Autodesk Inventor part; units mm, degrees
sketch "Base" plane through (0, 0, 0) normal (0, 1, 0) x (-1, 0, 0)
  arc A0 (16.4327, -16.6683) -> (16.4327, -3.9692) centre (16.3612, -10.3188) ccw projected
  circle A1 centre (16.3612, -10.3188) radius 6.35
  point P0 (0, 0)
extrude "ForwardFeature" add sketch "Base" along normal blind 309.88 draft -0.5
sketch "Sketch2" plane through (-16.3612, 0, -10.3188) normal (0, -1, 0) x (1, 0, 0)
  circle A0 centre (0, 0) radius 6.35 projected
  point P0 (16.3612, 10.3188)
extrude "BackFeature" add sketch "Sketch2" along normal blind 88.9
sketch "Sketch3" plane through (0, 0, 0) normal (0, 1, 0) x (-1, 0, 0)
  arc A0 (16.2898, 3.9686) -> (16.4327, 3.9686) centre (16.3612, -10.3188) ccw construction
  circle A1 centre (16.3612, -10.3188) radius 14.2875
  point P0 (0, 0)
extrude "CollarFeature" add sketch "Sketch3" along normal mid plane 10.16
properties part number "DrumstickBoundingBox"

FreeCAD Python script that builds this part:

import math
import FreeCAD as App
import Part
import Sketcher
from FreeCAD import Vector
Q = App.Units.Quantity

doc = App.newDocument("Part")
params = doc.addObject("Spreadsheet::Sheet", "Params")
for row, (alias, value) in enumerate([
    ("sketch1_radius", "0.25 in"),
    ("pad1_length", "12.2 in"),
    ("pad1_taper", "-0.5 deg"),
    ("sketch2_diameter", "0.5 in"),
    ("pad2_length", "3.5 in"),
    ("sketch3_diameter", "1.125 in"),
    ("pad3_length", "0.4 in"),
], start=1):
    params.set(f"A{row}", alias)
    params.set(f"B{row}", "=" + value)
    params.setAlias(f"B{row}", alias)

body = doc.addObject("PartDesign::Body", "Body")

# Sketch on XZ plane
sketch1 = body.newObject("Sketcher::SketchObject", "Sketch")
sketch1.AttachmentSupport = (doc.getObject("XZ_Plane"), [""])
sketch1.MapMode = "FlatFace"
sketch1.addGeometry([
    Part.ArcOfCircle(Part.Circle(Vector(-16.3612, -10.3188, 0), Vector(0, 0, 1), 6.35), math.radians(-90.645165), math.radians(90.645155)),
    Part.ArcOfCircle(Part.Circle(Vector(-16.3612, -10.3188, 0), Vector(0, 0, 1), 6.35), math.radians(90.645155), math.radians(269.354835)),
], False)
sketch1.addConstraint([
    Sketcher.Constraint("Tangent", 0, 1, 1, 2),
    Sketcher.Constraint("Coincident", 1, 1, 0, 2),
    Sketcher.Constraint("Vertical", 0, 1, 1, 1),
    Sketcher.Constraint("Radius", 0, Q("0.25 in")),
    Sketcher.Constraint("DistanceY", 0, 3, -1, 1, Q("0.406252 in")),
    Sketcher.Constraint("DistanceX", 0, 3, -1, 1, Q("16.3612 mm")),
    Sketcher.Constraint("DistanceX", 0, 1, -1, 1, Q("16.4327 mm")),
])
sketch1.setExpression("Constraints[3]", "Params.sketch1_radius")
pad1 = body.newObject("PartDesign::Pad", "Pad")
pad1.Profile = sketch1
pad1.setExpression("Length", "Params.pad1_length")
pad1.Reversed = True
pad1.setExpression("TaperAngle", "Params.pad1_taper")

# Sketch on XZ plane
sketch2 = body.newObject("Sketcher::SketchObject", "Sketch001")
sketch2.AttachmentSupport = (doc.getObject("XZ_Plane"), [""])
sketch2.MapMode = "FlatFace"
sketch2.addGeometry(Part.Circle(Vector(-16.3612, -10.3188, 0), Vector(0, 0, 1), 6.35), False)
sketch2.addConstraint([
    Sketcher.Constraint("Diameter", 0, Q("0.5 in")),
    Sketcher.Constraint("DistanceY", 0, 3, -1, 1, Q("0.406252 in")),
    Sketcher.Constraint("DistanceX", 0, 3, -1, 1, Q("16.3612 mm")),
])
sketch2.setExpression("Constraints[0]", "Params.sketch2_diameter")
pad2 = body.newObject("PartDesign::Pad", "Pad001")
pad2.Profile = sketch2
pad2.setExpression("Length", "Params.pad2_length")

# Sketch on XZ plane
sketch3 = body.newObject("Sketcher::SketchObject", "Sketch002")
sketch3.AttachmentSupport = (doc.getObject("XZ_Plane"), [""])
sketch3.MapMode = "FlatFace"
sketch3.addGeometry(Part.Circle(Vector(-16.3612, -10.3188, 0), Vector(0, 0, 1), 14.2875), False)
sketch3.addConstraint([
    Sketcher.Constraint("Diameter", 0, Q("1.125 in")),
    Sketcher.Constraint("DistanceY", 0, 3, -1, 1, Q("0.406252 in")),
    Sketcher.Constraint("DistanceX", 0, 3, -1, 1, Q("16.3612 mm")),
])
sketch3.setExpression("Constraints[0]", "Params.sketch3_diameter")
pad3 = body.newObject("PartDesign::Pad", "Pad002")
pad3.Profile = sketch3
pad3.setExpression("Length", "Params.pad3_length")
pad3.Midplane = True

doc.recompute()
